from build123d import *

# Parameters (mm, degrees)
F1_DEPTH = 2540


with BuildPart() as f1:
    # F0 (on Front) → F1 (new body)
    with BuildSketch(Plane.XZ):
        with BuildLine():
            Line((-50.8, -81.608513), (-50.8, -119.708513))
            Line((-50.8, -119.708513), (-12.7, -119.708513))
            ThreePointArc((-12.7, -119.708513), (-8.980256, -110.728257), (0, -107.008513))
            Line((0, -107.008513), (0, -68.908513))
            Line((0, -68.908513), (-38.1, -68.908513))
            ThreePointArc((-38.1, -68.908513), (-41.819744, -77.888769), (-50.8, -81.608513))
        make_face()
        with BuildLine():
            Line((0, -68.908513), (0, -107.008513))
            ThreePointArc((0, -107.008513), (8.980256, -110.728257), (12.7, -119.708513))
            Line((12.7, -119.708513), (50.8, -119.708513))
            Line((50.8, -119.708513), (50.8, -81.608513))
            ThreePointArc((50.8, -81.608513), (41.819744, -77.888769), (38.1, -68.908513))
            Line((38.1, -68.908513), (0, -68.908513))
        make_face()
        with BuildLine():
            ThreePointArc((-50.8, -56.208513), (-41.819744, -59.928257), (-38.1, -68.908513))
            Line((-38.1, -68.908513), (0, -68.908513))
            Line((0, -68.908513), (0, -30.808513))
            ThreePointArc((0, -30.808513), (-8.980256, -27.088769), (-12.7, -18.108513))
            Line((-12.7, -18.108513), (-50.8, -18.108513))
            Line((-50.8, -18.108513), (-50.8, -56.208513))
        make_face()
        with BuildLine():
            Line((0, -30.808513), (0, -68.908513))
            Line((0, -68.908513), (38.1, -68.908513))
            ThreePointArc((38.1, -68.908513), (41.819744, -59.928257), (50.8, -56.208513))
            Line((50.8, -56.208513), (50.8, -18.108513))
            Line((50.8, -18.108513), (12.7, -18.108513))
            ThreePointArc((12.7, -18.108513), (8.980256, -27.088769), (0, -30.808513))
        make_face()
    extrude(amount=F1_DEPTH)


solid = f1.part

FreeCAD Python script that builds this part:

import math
import FreeCAD as App
import Part
import Sketcher

V = App.Vector
Q = App.Units.Quantity

doc = App.newDocument("Part")
params = doc.addObject("Spreadsheet::Sheet", "Params")
for row, (alias, value) in enumerate([
    ("sketch1_radius", "0.5 in"),
    ("sketch1_width", "1.5 in"),
    ("pad1_length", "100 in"),
], start=1):
    params.set(f"A{row}", alias)
    params.set(f"B{row}", "=" + value)
    params.setAlias(f"B{row}", alias)

body = doc.addObject("PartDesign::Body", "Body")

# Sketch on XZ plane
sketch1 = body.newObject("Sketcher::SketchObject", "Sketch")
sketch1.AttachmentSupport = (doc.getObject("XZ_Plane"), [""])
sketch1.MapMode = "FlatFace"
sketch1.addGeometry([
    Part.LineSegment(V(-50.8, -81.608513, 0), V(-50.8, -119.708513, 0)),  # 0
    Part.LineSegment(V(-50.8, -119.708513, 0), V(-12.7, -119.708513, 0)),  # 1
    Part.ArcOfCircle(Part.Circle(V(0, -119.708513, 0), V(0, 0, 1), 12.7), math.radians(90.000002), math.radians(179.999998)),  # 2
    Part.ArcOfCircle(Part.Circle(V(0, -119.708513, 0), V(0, 0, 1), 12.7), math.radians(0.000002), math.radians(89.999998)),  # 3
    Part.LineSegment(V(12.7, -119.708513, 0), V(50.8, -119.708513, 0)),  # 4
    Part.LineSegment(V(50.8, -119.708513, 0), V(50.8, -81.608513, 0)),  # 5
    Part.ArcOfCircle(Part.Circle(V(50.8, -68.908513, 0), V(0, 0, 1), 12.7), math.radians(-179.999998), math.radians(-90.000002)),  # 6
    Part.ArcOfCircle(Part.Circle(V(50.8, -68.908513, 0), V(0, 0, 1), 12.7), math.radians(90.000002), math.radians(179.999998)),  # 7
    Part.LineSegment(V(50.8, -56.208513, 0), V(50.8, -18.108513, 0)),  # 8
    Part.LineSegment(V(50.8, -18.108513, 0), V(12.7, -18.108513, 0)),  # 9
    Part.ArcOfCircle(Part.Circle(V(0, -18.108513, 0), V(0, 0, 1), 12.7), math.radians(-89.999998), math.radians(-0.000002)),  # 10
    Part.ArcOfCircle(Part.Circle(V(0, -18.108513, 0), V(0, 0, 1), 12.7), math.radians(-179.999998), math.radians(-90.000002)),  # 11
    Part.LineSegment(V(-12.7, -18.108513, 0), V(-50.8, -18.108513, 0)),  # 12
    Part.LineSegment(V(-50.8, -18.108513, 0), V(-50.8, -56.208513, 0)),  # 13
    Part.ArcOfCircle(Part.Circle(V(-50.8, -68.908513, 0), V(0, 0, 1), 12.7), math.radians(0.000002), math.radians(89.999998)),  # 14
    Part.ArcOfCircle(Part.Circle(V(-50.8, -68.908513, 0), V(0, 0, 1), 12.7), math.radians(-89.999998), math.radians(-0.000002)),  # 15
], False)
sketch1.addConstraint([
    Sketcher.Constraint("Coincident", 0, 2, 1, 1),
    Sketcher.Constraint("Coincident", 1, 2, 2, 2),
    Sketcher.Constraint("Tangent", 2, 1, 3, 2),
    Sketcher.Constraint("Coincident", 3, 1, 4, 1),
    Sketcher.Constraint("Coincident", 4, 2, 5, 1),
    Sketcher.Constraint("Coincident", 5, 2, 6, 2),
    Sketcher.Constraint("Tangent", 6, 1, 7, 2),
    Sketcher.Constraint("Coincident", 7, 1, 8, 1),
    Sketcher.Constraint("Coincident", 8, 2, 9, 1),
    Sketcher.Constraint("Coincident", 9, 2, 10, 2),
    Sketcher.Constraint("Tangent", 10, 1, 11, 2),
    Sketcher.Constraint("Coincident", 11, 1, 12, 1),
    Sketcher.Constraint("Coincident", 12, 2, 13, 1),
    Sketcher.Constraint("Coincident", 13, 2, 14, 2),
    Sketcher.Constraint("Tangent", 14, 1, 15, 2),
    Sketcher.Constraint("Coincident", 15, 1, 0, 1),
    Sketcher.Constraint("Vertical", 0),
    Sketcher.Constraint("Horizontal", 1),
    Sketcher.Constraint("Horizontal", 4),
    Sketcher.Constraint("Vertical", 5),
    Sketcher.Constraint("Vertical", 8),
    Sketcher.Constraint("Horizontal", 9),
    Sketcher.Constraint("Horizontal", 12),
    Sketcher.Constraint("Vertical", 13),
    Sketcher.Constraint("Equal", 2, 3),
    Sketcher.Constraint("Equal", 3, 6),
    Sketcher.Constraint("Equal", 6, 7),
    Sketcher.Constraint("Equal", 7, 10),
    Sketcher.Constraint("Equal", 10, 11),
    Sketcher.Constraint("Equal", 11, 14),
    Sketcher.Constraint("Equal", 14, 15),
    Sketcher.Constraint("Symmetric", 6, 3, 14, 3, -2),
    Sketcher.Constraint("Symmetric", 1, 2, 3, 1, -2),
    Sketcher.Constraint("Symmetric", 9, 2, 11, 1, -2),
    Sketcher.Constraint("PointOnObject", 2, 1, -2),
    Sketcher.Constraint("PointOnObject", 10, 1, -2),
    Sketcher.Constraint("Horizontal", 3, 3, 0, 2),
    Sketcher.Constraint("Horizontal", 15, 3, 6, 1),
    Sketcher.Constraint("Horizontal", 11, 3, 8, 2),
    Sketcher.Constraint("Horizontal", 6, 1, 14, 1),
    Sketcher.Constraint("Vertical", 15, 3, 0, 2),
    Sketcher.Constraint("Vertical", 7, 3, 4, 2),
    Sketcher.Constraint("Vertical", 5, 2, 7, 1),
    Sketcher.Constraint("Vertical", 0, 2, 12, 2),
    Sketcher.Constraint("Equal", 12, 0),
    Sketcher.Constraint("Equal", 5, 8),
    Sketcher.Constraint("Radius", 2, Q("0.5 in")),
    Sketcher.Constraint("DistanceX", 1, 1, 1, 2, Q("1.5 in")),
    Sketcher.Constraint("DistanceY", 2, 3, -1, 1, 119.708513),
])
sketch1.setExpression("Constraints[46]", "Params.sketch1_radius")
sketch1.setExpression("Constraints[47]", "Params.sketch1_width")
pad1 = body.newObject("PartDesign::Pad", "Pad")
pad1.Profile = sketch1
pad1.setExpression("Length", "Params.pad1_length")

doc.recompute()
